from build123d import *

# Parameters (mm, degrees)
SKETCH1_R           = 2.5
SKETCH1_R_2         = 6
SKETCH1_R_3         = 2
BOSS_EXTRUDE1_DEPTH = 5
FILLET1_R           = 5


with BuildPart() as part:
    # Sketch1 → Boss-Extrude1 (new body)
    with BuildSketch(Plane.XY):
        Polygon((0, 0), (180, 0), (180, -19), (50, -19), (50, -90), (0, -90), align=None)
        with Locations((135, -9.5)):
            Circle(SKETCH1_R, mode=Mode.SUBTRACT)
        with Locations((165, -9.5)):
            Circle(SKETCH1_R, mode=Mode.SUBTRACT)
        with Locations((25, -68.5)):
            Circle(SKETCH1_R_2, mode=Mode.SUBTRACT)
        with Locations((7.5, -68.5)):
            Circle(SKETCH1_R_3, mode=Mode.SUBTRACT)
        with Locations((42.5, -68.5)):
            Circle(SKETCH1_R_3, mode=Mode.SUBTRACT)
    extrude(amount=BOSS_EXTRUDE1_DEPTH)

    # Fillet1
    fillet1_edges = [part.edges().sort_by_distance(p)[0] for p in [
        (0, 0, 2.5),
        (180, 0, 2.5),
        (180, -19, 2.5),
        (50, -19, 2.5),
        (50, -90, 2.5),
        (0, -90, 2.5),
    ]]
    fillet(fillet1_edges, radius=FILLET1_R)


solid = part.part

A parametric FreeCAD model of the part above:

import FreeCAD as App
import Part
import Sketcher

V = App.Vector


def edges_at(feature, points):
    """Names of the edges that pass closest to the given points."""
    edges = feature.Shape.Edges
    near = lambda p: min(range(len(edges)), key=lambda i: edges[i].distToShape(Part.Vertex(*p))[0])
    return sorted({f"Edge{near(p) + 1}" for p in points})


def add_polygon(sketch, points):
    """Adds a closed chain of lines whose ends are joined by coincident constraints."""
    first, n = sketch.GeometryCount, len(points)
    for a, b in zip(points, points[1:] + points[:1]):
        sketch.addGeometry(Part.LineSegment(App.Vector(*a, 0), App.Vector(*b, 0)), False)
    for i in range(n):
        sketch.addConstraint(Sketcher.Constraint("Coincident", first + i, 2, first + (i + 1) % n, 1))

doc = App.newDocument("Part")
body = doc.addObject("PartDesign::Body", "Body")

# Sketch on XY plane
sketch1 = body.newObject("Sketcher::SketchObject", "Sketch")
sketch1.AttachmentSupport = (doc.getObject("XY_Plane"), [""])
sketch1.MapMode = "FlatFace"
add_polygon(sketch1, [(180, 0), (0, 0), (0, -90), (50, -90), (50, -19), (180, -19)])  # lines 0-5
sketch1.addGeometry(Part.Circle(V(42.5, -68.5, 0), V(0, 0, 1), 2), False)  # 6
sketch1.addGeometry(Part.Circle(V(25, -68.5, 0), V(0, 0, 1), 6), False)  # 7
sketch1.addGeometry(Part.Circle(V(7.5, -68.5, 0), V(0, 0, 1), 2), False)  # 8
sketch1.addGeometry(Part.Circle(V(165, -9.5, 0), V(0, 0, 1), 2.5), False)  # 9
sketch1.addGeometry(Part.Circle(V(135, -9.5, 0), V(0, 0, 1), 2.5), False)  # 10
sketch1.addConstraint([
    Sketcher.Constraint("Horizontal", 0),
    Sketcher.Constraint("Vertical", 1),
    Sketcher.Constraint("Horizontal", 2),
    Sketcher.Constraint("Vertical", 3),
    Sketcher.Constraint("Horizontal", 4),
    Sketcher.Constraint("Vertical", 5),
    Sketcher.Constraint("Coincident", 0, 2, -1, 1),
    Sketcher.Constraint("Equal", 6, 8),
    Sketcher.Constraint("Equal", 9, 10),
    Sketcher.Constraint("Horizontal", 6, 3, 7, 3),
    Sketcher.Constraint("Horizontal", 7, 3, 8, 3),
    Sketcher.Constraint("Horizontal", 9, 3, 10, 3),
    Sketcher.Constraint("Diameter", 6, 4.0),
    Sketcher.Constraint("Diameter", 7, 12.0),
    Sketcher.Constraint("Diameter", 9, 5.0),
    Sketcher.Constraint("DistanceX", 0, 2, 0, 1, 180.0),
    Sketcher.Constraint("DistanceX", 2, 1, 2, 2, 50.0),
    Sketcher.Constraint("DistanceY", 1, 2, 1, 1, 90.0),
    Sketcher.Constraint("DistanceY", 3, 1, 3, 2, 71.0),
    Sketcher.Constraint("DistanceX", -1, 1, 7, 3, 25.0),
    Sketcher.Constraint("DistanceX", -1, 1, 9, 3, 165.0),
    Sketcher.Constraint("DistanceX", -1, 1, 10, 3, 135.0),
    Sketcher.Constraint("DistanceX", 8, 3, 6, 3, 35.0),
    Sketcher.Constraint("DistanceY", 6, 3, 9, 3, 59.0),
    Sketcher.Constraint("DistanceX", -1, 1, 6, 3, 42.5),
    Sketcher.Constraint("DistanceY", 6, 3, -1, 1, 68.5),
])
pad1 = body.newObject("PartDesign::Pad", "Pad")
pad1.Profile = sketch1
pad1.Length = 5
doc.recompute()

fillet = body.newObject("PartDesign::Fillet", "Fillet")
fillet.Base = (pad1, edges_at(pad1, [
    (0, 0, 2.5),
    (180, 0, 2.5),
    (180, -19, 2.5),
    (50, -19, 2.5),
    (50, -90, 2.5),
    (0, -90, 2.5),
]))
fillet.Radius = 5

doc.recompute()
